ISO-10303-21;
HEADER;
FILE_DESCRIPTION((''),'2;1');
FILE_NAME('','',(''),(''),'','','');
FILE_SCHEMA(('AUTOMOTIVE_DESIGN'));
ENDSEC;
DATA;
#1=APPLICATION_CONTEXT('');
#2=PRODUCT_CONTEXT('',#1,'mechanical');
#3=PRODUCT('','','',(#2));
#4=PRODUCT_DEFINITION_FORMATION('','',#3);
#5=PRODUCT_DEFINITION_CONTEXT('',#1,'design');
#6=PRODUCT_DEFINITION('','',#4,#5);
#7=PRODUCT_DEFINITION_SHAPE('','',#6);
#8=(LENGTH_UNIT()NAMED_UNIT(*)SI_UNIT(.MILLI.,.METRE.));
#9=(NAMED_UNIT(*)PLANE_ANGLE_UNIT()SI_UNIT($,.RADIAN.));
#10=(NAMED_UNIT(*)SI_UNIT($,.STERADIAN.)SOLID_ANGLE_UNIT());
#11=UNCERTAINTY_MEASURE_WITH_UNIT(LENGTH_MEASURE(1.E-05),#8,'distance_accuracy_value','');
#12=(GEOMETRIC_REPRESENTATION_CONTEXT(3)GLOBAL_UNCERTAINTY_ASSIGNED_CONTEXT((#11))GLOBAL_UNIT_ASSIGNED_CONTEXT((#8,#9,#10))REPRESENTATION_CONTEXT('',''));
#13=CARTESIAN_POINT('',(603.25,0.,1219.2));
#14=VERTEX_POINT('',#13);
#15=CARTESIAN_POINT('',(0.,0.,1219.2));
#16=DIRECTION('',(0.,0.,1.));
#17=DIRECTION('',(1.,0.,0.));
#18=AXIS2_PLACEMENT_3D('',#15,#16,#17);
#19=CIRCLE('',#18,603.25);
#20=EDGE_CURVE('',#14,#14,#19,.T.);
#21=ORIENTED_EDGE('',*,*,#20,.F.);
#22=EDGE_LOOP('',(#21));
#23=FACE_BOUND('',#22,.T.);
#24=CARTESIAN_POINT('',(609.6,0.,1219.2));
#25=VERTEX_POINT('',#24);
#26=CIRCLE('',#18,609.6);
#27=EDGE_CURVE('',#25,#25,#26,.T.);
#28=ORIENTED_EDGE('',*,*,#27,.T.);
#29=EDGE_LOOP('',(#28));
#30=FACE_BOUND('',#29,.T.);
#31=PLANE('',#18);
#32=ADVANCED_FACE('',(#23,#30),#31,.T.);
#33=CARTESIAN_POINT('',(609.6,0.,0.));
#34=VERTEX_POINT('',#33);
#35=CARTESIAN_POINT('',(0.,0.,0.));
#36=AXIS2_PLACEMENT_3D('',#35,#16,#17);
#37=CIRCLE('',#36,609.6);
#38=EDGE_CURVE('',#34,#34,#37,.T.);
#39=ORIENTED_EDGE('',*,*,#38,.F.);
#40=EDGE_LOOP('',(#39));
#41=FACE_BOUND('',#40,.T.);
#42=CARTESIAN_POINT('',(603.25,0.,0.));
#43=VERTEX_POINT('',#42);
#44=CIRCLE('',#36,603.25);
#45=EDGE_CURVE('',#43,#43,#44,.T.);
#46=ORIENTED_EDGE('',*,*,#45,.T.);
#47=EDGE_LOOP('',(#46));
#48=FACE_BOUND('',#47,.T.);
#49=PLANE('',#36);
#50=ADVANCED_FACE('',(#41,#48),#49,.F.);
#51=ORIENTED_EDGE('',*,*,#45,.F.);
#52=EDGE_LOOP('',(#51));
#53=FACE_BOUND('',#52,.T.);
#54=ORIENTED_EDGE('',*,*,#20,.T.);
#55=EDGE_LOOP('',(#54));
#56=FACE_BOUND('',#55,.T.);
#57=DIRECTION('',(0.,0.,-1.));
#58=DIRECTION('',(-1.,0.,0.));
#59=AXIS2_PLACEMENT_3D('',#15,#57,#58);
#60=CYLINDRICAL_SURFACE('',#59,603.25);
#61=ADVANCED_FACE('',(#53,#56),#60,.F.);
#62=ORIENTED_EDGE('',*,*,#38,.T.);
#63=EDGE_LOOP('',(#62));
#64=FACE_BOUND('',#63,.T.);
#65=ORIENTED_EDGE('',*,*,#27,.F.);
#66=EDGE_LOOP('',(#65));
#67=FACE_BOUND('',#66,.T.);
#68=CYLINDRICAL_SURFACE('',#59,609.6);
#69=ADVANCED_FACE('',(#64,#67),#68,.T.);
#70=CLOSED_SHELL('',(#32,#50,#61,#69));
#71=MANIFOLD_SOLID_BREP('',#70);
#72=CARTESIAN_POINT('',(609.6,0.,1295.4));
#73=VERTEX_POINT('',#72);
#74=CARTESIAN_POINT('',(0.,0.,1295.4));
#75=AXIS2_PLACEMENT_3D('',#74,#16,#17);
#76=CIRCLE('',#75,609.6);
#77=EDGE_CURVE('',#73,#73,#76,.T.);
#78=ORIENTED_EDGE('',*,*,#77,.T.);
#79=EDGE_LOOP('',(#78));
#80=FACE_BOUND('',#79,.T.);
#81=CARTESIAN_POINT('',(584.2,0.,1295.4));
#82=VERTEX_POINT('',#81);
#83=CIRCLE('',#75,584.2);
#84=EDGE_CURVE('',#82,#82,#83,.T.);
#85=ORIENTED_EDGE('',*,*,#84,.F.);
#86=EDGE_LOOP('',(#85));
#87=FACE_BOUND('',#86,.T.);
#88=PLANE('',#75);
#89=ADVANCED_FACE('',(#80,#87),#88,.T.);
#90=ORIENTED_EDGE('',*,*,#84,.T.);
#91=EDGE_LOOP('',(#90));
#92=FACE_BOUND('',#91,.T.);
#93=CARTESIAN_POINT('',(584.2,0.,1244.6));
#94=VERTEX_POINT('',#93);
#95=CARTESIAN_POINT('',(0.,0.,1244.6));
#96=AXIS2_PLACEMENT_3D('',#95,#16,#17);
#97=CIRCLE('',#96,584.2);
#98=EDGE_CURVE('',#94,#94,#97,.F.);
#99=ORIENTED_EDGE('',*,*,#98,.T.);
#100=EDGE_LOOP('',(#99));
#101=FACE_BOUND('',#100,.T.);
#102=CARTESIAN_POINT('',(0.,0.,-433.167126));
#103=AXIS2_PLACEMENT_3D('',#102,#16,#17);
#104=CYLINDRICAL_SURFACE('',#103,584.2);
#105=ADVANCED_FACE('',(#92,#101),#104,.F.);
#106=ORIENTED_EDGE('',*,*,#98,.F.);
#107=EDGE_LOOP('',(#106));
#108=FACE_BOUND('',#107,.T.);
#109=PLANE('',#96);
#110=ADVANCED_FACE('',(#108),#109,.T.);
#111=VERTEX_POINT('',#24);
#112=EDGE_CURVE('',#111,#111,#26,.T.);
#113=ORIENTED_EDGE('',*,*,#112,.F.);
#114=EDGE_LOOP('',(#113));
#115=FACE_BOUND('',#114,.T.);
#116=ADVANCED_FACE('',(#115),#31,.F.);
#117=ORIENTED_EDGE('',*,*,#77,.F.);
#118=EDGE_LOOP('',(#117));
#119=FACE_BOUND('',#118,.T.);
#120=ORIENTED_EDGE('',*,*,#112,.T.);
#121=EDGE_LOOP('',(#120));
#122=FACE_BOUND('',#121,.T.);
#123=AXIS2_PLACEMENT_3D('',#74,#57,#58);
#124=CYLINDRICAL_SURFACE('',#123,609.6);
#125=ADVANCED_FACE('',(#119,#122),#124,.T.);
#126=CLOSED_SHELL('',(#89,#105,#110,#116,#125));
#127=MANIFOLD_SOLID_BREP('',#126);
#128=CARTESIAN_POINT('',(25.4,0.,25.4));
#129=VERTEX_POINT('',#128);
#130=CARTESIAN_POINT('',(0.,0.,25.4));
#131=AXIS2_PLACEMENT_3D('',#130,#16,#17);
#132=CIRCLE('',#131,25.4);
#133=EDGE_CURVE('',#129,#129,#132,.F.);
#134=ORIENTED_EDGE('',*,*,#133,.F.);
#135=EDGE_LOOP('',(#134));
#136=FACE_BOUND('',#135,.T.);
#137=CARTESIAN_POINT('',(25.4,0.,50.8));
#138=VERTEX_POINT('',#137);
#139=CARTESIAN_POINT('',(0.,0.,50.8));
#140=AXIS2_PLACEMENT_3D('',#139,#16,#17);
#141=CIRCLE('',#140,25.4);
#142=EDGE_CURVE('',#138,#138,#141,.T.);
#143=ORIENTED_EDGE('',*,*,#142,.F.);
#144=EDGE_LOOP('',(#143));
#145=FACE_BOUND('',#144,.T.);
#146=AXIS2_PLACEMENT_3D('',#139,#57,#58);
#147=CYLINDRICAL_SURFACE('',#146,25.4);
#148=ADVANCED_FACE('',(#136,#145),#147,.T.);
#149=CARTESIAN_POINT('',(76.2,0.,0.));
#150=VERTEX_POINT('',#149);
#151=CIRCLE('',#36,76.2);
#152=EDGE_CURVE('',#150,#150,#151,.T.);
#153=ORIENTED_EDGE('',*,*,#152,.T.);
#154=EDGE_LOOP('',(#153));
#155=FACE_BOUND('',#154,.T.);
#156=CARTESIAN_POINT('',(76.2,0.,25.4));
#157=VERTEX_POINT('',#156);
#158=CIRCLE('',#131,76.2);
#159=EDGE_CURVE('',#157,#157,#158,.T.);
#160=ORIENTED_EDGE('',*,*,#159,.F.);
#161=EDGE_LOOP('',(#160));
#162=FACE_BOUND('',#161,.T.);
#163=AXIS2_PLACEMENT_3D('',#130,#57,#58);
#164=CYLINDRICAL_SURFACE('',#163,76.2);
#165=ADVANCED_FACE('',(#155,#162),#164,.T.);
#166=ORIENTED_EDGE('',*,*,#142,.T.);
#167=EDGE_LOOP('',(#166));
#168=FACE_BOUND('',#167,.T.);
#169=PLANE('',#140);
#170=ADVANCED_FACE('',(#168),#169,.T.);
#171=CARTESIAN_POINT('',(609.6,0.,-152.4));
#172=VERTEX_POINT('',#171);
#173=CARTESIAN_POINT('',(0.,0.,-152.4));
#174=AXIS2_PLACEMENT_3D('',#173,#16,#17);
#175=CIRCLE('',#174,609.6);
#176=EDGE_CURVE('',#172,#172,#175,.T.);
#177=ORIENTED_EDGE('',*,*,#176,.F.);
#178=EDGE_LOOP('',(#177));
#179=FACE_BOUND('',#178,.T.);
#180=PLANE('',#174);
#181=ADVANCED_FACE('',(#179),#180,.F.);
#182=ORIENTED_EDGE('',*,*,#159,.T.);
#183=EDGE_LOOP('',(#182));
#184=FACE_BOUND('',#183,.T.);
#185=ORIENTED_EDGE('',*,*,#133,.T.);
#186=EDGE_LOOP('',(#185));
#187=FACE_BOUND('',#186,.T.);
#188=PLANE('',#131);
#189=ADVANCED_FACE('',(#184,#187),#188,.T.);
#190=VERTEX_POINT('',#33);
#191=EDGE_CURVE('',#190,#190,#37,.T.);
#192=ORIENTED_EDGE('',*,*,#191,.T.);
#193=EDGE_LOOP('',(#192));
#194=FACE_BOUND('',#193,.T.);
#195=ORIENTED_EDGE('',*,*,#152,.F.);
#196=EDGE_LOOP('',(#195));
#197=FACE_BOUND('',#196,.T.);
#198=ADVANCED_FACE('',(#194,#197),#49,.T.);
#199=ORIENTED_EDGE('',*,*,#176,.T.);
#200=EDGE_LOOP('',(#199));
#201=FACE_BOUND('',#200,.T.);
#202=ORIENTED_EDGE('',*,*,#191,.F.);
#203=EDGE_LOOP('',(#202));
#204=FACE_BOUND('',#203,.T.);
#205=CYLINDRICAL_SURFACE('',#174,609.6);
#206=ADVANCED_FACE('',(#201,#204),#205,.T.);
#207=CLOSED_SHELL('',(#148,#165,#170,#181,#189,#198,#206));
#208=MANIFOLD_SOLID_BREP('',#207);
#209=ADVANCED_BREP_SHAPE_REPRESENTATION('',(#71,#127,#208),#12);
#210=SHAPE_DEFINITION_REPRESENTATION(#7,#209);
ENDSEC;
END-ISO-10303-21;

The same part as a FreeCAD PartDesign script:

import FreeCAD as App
import Part
import Sketcher
from FreeCAD import Vector
Q = App.Units.Quantity

doc = App.newDocument("Part")
params = doc.addObject("Spreadsheet::Sheet", "Params")
for row, (alias, value) in enumerate([
    ("sketch1_diameter", "48 in"),
    ("pad1_length", "6 in"),
    ("sketch2_diameter", "6 in"),
    ("sketch2_diameter2", "2 in"),
    ("pad2_length", "1 in"),
    ("sketch3_diameter", "2 in"),
    ("pad3_length", "2 in"),
    ("sketch4_diameter", "48 in"),
    ("sketch4_diameter2", "47.5 in"),
    ("pad4_length", "48 in"),
    ("sketch5_diameter", "48 in"),
    ("pad5_length", "3 in"),
    ("sketch6_diameter", "46 in"),
    ("pocket1_length", "2 in"),
], start=1):
    params.set(f"A{row}", alias)
    params.set(f"B{row}", "=" + value)
    params.setAlias(f"B{row}", alias)

body = doc.addObject("PartDesign::Body", "Body")

# Sketch on XY plane
sketch1 = doc.addObject("Sketcher::SketchObject", "Sketch")
body.addObject(sketch1)
sketch1.AttachmentSupport = (doc.XY_Plane, [""])
sketch1.MapMode = "FlatFace"
sketch1.addGeometry(Part.Circle(Vector(0, 0, 0), Vector(0, 0, 1), 609.6), False)
sketch1.addConstraint([
    Sketcher.Constraint("Coincident", 0, 3, -1, 1),
    Sketcher.Constraint("Diameter", 0, Q("48 in")),
])
sketch1.setExpression("Constraints[1]", "Params.sketch1_diameter")
pad1 = doc.addObject("PartDesign::Pad", "Pad")
body.addObject(pad1)
pad1.Profile = sketch1
pad1.setExpression("Length", "Params.pad1_length")
pad1.Reversed = True

# Sketch on XY plane
sketch2 = doc.addObject("Sketcher::SketchObject", "Sketch001")
body.addObject(sketch2)
sketch2.AttachmentSupport = (doc.XY_Plane, [""])
sketch2.MapMode = "FlatFace"
sketch2.addGeometry([
    Part.Circle(Vector(0, 0, 0), Vector(0, 0, 1), 76.2),
    Part.Circle(Vector(0, 0, 0), Vector(0, 0, 1), 25.4),
], False)
sketch2.addConstraint([
    Sketcher.Constraint("Coincident", 0, 3, -1, 1),
    Sketcher.Constraint("Coincident", 1, 3, -1, 1),
    Sketcher.Constraint("Diameter", 0, Q("6 in")),
    Sketcher.Constraint("Diameter", 1, Q("2 in")),
])
sketch2.setExpression("Constraints[2]", "Params.sketch2_diameter")
sketch2.setExpression("Constraints[3]", "Params.sketch2_diameter2")
pad2 = doc.addObject("PartDesign::Pad", "Pad001")
body.addObject(pad2)
pad2.Profile = sketch2
pad2.setExpression("Length", "Params.pad2_length")

# Sketch on XY plane
sketch3 = doc.addObject("Sketcher::SketchObject", "Sketch002")
body.addObject(sketch3)
sketch3.AttachmentSupport = (doc.XY_Plane, [""])
sketch3.MapMode = "FlatFace"
sketch3.addGeometry(Part.Circle(Vector(0, 0, 0), Vector(0, 0, 1), 25.4), False)
sketch3.addConstraint([
    Sketcher.Constraint("Coincident", 0, 3, -1, 1),
    Sketcher.Constraint("Diameter", 0, Q("2 in")),
])
sketch3.setExpression("Constraints[1]", "Params.sketch3_diameter")
pad3 = doc.addObject("PartDesign::Pad", "Pad002")
body.addObject(pad3)
pad3.Profile = sketch3
pad3.setExpression("Length", "Params.pad3_length")
body2 = doc.addObject("PartDesign::Body", "Body001")

# Sketch on XY plane
sketch4 = doc.addObject("Sketcher::SketchObject", "Sketch003")
body2.addObject(sketch4)
sketch4.AttachmentSupport = (doc.getObject("XY_Plane001"), [""])
sketch4.MapMode = "FlatFace"
sketch4.addGeometry([
    Part.Circle(Vector(0, 0, 0), Vector(0, 0, 1), 609.6),
    Part.Circle(Vector(0, 0, 0), Vector(0, 0, 1), 603.25),
], False)
sketch4.addConstraint([
    Sketcher.Constraint("Coincident", 0, 3, -1, 1),
    Sketcher.Constraint("Coincident", 1, 3, -1, 1),
    Sketcher.Constraint("Diameter", 0, Q("48 in")),
    Sketcher.Constraint("Diameter", 1, Q("47.5 in")),
])
sketch4.setExpression("Constraints[2]", "Params.sketch4_diameter")
sketch4.setExpression("Constraints[3]", "Params.sketch4_diameter2")
pad4 = doc.addObject("PartDesign::Pad", "Pad003")
body2.addObject(pad4)
pad4.Profile = sketch4
pad4.setExpression("Length", "Params.pad4_length")
body3 = doc.addObject("PartDesign::Body", "Body002")

# Sketch on XY plane
sketch5 = doc.addObject("Sketcher::SketchObject", "Sketch004")
body3.addObject(sketch5)
sketch5.AttachmentSupport = (doc.getObject("XY_Plane002"), [""])
sketch5.MapMode = "FlatFace"
sketch5.AttachmentOffset = App.Placement(Vector(0, 0, 48 * 25.4), App.Rotation())
sketch5.addGeometry(Part.Circle(Vector(0, 0, 0), Vector(0, 0, 1), 609.6), False)
sketch5.addConstraint([
    Sketcher.Constraint("Coincident", 0, 3, -1, 1),
    Sketcher.Constraint("Diameter", 0, Q("48 in")),
])
sketch5.setExpression("Constraints[1]", "Params.sketch5_diameter")
pad5 = doc.addObject("PartDesign::Pad", "Pad004")
body3.addObject(pad5)
pad5.Profile = sketch5
pad5.setExpression("Length", "Params.pad5_length")

# Sketch on XY plane
sketch6 = doc.addObject("Sketcher::SketchObject", "Sketch005")
body3.addObject(sketch6)
sketch6.AttachmentSupport = (doc.getObject("XY_Plane002"), [""])
sketch6.MapMode = "FlatFace"
sketch6.AttachmentOffset = App.Placement(Vector(0, 0, 51 * 25.4), App.Rotation())
sketch6.addGeometry(Part.Circle(Vector(0, 0, 0), Vector(0, 0, 1), 584.2), False)
sketch6.addConstraint([
    Sketcher.Constraint("Coincident", 0, 3, -1, 1),
    Sketcher.Constraint("Diameter", 0, Q("46 in")),
])
sketch6.setExpression("Constraints[1]", "Params.sketch6_diameter")
pocket1 = doc.addObject("PartDesign::Pocket", "Pocket")
body3.addObject(pocket1)
pocket1.Profile = sketch6
pocket1.setExpression("Length", "Params.pocket1_length")

doc.recompute()
